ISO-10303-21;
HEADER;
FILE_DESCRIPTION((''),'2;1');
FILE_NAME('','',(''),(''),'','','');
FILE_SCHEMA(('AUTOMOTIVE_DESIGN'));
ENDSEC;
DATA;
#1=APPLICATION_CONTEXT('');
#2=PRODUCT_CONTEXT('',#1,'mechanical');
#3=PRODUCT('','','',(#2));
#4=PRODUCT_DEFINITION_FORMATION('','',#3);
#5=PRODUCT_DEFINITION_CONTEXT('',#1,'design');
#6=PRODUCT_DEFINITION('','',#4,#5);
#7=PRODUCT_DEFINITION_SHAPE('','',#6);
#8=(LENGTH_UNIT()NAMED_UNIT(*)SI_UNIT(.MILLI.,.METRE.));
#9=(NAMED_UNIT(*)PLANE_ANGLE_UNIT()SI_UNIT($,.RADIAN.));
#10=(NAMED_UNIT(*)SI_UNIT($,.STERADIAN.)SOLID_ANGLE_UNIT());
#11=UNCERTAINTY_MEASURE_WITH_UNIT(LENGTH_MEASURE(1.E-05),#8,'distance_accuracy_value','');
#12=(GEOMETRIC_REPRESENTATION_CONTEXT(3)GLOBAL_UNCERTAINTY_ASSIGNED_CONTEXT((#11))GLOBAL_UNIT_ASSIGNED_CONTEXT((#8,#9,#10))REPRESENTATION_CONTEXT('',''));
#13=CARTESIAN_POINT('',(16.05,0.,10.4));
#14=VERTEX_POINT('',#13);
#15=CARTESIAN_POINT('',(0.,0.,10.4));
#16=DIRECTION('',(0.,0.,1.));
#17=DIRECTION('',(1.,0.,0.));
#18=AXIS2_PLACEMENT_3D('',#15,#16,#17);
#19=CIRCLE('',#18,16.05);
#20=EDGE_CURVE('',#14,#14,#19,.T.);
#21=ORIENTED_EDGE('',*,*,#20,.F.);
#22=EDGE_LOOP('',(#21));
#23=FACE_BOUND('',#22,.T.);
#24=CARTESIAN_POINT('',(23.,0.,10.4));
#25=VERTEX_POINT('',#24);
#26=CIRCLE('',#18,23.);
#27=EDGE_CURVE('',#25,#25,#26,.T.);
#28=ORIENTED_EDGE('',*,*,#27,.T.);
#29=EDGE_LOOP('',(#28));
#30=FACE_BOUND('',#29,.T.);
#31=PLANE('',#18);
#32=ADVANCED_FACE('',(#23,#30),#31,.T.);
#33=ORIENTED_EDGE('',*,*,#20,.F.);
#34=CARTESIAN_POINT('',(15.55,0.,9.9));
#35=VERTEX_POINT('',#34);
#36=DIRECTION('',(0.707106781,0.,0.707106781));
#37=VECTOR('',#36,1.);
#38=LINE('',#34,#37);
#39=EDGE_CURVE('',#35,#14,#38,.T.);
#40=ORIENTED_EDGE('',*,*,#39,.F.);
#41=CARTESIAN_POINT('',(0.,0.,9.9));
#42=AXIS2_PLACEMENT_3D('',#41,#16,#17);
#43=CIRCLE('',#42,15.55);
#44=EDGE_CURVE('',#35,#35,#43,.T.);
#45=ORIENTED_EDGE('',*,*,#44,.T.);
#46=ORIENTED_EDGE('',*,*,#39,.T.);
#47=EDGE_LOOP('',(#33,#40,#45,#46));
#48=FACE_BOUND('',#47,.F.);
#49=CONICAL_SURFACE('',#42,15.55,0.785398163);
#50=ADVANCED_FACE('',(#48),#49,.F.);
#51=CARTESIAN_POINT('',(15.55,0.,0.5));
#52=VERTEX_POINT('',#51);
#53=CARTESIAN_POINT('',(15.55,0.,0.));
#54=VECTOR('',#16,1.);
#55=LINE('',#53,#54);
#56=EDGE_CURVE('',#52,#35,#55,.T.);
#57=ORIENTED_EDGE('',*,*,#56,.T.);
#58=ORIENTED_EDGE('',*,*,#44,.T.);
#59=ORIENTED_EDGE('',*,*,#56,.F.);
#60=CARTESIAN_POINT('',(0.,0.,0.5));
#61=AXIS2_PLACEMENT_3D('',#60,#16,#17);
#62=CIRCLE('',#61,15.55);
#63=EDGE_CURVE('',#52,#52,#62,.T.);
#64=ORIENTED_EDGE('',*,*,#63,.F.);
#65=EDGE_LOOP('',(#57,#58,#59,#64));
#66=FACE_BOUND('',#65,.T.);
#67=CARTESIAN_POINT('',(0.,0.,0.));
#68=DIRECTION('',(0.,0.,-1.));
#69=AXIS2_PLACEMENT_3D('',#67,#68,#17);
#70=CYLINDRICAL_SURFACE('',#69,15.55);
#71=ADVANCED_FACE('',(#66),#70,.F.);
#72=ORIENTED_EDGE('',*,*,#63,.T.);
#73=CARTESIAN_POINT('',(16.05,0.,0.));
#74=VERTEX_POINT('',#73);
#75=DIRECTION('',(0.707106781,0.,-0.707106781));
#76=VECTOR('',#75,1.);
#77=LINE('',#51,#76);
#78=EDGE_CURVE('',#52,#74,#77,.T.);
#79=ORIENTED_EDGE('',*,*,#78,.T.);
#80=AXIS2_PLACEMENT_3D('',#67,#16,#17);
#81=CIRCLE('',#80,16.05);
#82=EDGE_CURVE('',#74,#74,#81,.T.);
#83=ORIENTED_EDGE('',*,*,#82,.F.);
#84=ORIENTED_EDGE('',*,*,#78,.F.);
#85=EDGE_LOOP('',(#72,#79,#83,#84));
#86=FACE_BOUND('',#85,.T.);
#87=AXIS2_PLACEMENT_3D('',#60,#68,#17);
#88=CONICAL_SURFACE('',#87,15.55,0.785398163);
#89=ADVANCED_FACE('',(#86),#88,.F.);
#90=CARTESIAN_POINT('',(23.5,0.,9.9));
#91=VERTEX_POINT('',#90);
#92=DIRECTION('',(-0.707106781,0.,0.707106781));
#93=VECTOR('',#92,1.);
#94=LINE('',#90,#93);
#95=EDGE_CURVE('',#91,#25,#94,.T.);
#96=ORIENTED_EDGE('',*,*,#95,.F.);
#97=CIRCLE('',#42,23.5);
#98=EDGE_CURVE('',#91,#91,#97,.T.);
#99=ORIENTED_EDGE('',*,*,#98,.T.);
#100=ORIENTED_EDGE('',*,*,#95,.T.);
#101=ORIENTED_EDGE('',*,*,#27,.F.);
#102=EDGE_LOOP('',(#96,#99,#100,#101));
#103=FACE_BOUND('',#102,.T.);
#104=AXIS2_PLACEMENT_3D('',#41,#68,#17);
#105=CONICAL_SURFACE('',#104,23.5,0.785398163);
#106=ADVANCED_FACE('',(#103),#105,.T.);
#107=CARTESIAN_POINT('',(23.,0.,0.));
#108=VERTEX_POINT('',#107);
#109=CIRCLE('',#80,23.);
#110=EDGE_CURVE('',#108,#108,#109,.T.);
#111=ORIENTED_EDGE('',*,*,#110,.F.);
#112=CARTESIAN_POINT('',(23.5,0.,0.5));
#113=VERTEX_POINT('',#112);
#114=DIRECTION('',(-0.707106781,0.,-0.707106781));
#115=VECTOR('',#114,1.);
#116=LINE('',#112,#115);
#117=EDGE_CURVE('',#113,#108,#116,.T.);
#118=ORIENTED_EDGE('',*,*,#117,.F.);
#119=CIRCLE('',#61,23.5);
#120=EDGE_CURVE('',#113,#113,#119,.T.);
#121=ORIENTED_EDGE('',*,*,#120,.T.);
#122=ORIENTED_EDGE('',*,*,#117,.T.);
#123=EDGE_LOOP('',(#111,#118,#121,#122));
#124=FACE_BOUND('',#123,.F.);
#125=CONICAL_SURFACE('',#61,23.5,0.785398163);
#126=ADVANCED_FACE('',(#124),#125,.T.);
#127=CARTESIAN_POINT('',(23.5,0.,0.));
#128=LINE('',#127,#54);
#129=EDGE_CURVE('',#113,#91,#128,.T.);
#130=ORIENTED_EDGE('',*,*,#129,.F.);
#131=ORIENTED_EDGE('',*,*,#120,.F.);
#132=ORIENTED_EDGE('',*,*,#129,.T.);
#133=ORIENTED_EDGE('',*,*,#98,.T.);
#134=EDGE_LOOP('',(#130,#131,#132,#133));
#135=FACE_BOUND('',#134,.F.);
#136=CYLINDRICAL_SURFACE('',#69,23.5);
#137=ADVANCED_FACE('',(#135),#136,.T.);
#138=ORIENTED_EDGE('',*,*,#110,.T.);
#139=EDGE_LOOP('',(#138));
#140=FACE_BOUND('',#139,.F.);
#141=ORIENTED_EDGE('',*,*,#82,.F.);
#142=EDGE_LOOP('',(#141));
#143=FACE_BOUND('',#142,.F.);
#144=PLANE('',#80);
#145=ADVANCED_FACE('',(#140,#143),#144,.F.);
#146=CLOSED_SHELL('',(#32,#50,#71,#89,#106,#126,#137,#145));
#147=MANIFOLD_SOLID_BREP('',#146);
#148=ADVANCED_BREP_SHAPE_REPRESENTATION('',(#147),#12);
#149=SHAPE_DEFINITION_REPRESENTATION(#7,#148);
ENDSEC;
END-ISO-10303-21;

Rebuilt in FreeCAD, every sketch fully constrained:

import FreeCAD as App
import Part
import Sketcher
Q = App.Units.Quantity


def edges_at(feature, points):
    """Names of the edges that pass closest to the given points."""
    edges = feature.Shape.Edges
    near = lambda p: min(range(len(edges)), key=lambda i: edges[i].distToShape(Part.Vertex(*p))[0])
    return sorted({f"Edge{near(p) + 1}" for p in points})

doc = App.newDocument("Part")
body = doc.addObject("PartDesign::Body", "Body")

sketch1 = body.newObject("Sketcher::SketchObject", "Sketch")
sketch1.AttachmentSupport = (doc.getObject("XY_Plane"), [""])
sketch1.MapMode = "FlatFace"
sketch1.addGeometry(Part.Circle(App.Vector(0, 0, 0), App.Vector(0, 0, 1), 23.5), False)
sketch1.addGeometry(Part.Circle(App.Vector(0, 0, 0), App.Vector(0, 0, 1), 15.55), False)
sketch1.addConstraint(Sketcher.Constraint("Coincident", 0, 3, -1, 1))
sketch1.addConstraint(Sketcher.Constraint("Coincident", 1, 3, -1, 1))
sketch1.addConstraint(Sketcher.Constraint("Diameter", 0, Q("47 mm")))
sketch1.addConstraint(Sketcher.Constraint("Diameter", 1, Q("31.1 mm")))
pad1 = body.newObject("PartDesign::Pad", "Pad")
pad1.Profile = sketch1
pad1.Length = 10.4
doc.recompute()

chamfer = body.newObject("PartDesign::Chamfer", "Chamfer")
chamfer.Base = (pad1, edges_at(pad1, [
    (-15.55, 0, 10.4),
    (-15.55, 0, 0),
    (-23.5, 0, 10.4),
    (-23.5, 0, 0),
]))
chamfer.Size = 0.5

doc.recompute()
